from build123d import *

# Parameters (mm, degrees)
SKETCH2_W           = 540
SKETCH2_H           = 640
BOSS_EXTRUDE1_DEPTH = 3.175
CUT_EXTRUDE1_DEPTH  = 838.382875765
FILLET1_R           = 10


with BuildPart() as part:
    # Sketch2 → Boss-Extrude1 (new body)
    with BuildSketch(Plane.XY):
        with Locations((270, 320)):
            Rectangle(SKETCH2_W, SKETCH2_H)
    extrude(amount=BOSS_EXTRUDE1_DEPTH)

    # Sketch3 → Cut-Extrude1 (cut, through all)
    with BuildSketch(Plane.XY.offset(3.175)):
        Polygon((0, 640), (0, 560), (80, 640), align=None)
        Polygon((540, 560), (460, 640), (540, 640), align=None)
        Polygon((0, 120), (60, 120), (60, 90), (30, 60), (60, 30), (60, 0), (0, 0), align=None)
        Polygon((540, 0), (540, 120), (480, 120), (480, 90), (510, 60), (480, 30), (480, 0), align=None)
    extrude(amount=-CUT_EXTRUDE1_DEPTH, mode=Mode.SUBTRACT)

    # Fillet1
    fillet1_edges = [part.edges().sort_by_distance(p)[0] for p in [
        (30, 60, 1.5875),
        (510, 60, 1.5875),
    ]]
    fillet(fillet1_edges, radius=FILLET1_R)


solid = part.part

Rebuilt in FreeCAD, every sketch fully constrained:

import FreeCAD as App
import Part
import Sketcher
from FreeCAD import Vector


def edges_at(feature, points):
    """Names of the edges that pass closest to the given points."""
    edges = feature.Shape.Edges
    near = lambda p: min(range(len(edges)), key=lambda i: edges[i].distToShape(Part.Vertex(*p))[0])
    return sorted({f"Edge{near(p) + 1}" for p in points})


def add_polygon(sketch, points):
    """Adds a closed chain of lines whose ends are joined by coincident constraints."""
    first, n = sketch.GeometryCount, len(points)
    for a, b in zip(points, points[1:] + points[:1]):
        sketch.addGeometry(Part.LineSegment(App.Vector(*a, 0), App.Vector(*b, 0)), False)
    for i in range(n):
        sketch.addConstraint(Sketcher.Constraint("Coincident", first + i, 2, first + (i + 1) % n, 1))

doc = App.newDocument("Part")
body = doc.addObject("PartDesign::Body", "Body")

# Sketch on XY plane
sketch1 = doc.addObject("Sketcher::SketchObject", "Sketch")
body.addObject(sketch1)
sketch1.AttachmentSupport = (doc.XY_Plane, [""])
sketch1.MapMode = "FlatFace"
add_polygon(sketch1, [(0, 640), (0, 0), (540, 0), (540, 640)])  # lines 0-3
sketch1.addConstraint([
    Sketcher.Constraint("Vertical", 0),
    Sketcher.Constraint("Horizontal", 1),
    Sketcher.Constraint("Vertical", 2),
    Sketcher.Constraint("Horizontal", 3),
    Sketcher.Constraint("Coincident", 0, 2, -1, 1),
    Sketcher.Constraint("DistanceX", 1, 1, 1, 2, 540.0),
    Sketcher.Constraint("DistanceY", 0, 2, 0, 1, 640.0),
])
pad1 = doc.addObject("PartDesign::Pad", "Pad")
body.addObject(pad1)
pad1.Profile = sketch1
pad1.Length = 3.175

# Sketch on XY plane
sketch2 = doc.addObject("Sketcher::SketchObject", "Sketch001")
body.addObject(sketch2)
sketch2.AttachmentSupport = (doc.XY_Plane, [""])
sketch2.MapMode = "FlatFace"
sketch2.AttachmentOffset = App.Placement(Vector(0, 0, 3.175), App.Rotation())
add_polygon(sketch2, [(0, 640), (0, 560), (80, 640)])  # lines 0-2
add_polygon(sketch2, [(460, 640), (540, 560), (540, 640)])  # lines 3-5
add_polygon(sketch2, [(60, 120), (0, 120), (0, 0), (60, 0), (60, 30), (30, 60), (60, 90)])  # lines 6-12
add_polygon(sketch2, [(540, 0), (540, 120), (480, 120), (480, 90), (510, 60), (480, 30), (480, 0)])  # lines 13-19
sketch2.addConstraint([
    Sketcher.Constraint("Vertical", 0),
    Sketcher.Constraint("Horizontal", 2),
    Sketcher.Constraint("Vertical", 4),
    Sketcher.Constraint("Horizontal", 5),
    Sketcher.Constraint("Horizontal", 6),
    Sketcher.Constraint("Vertical", 7),
    Sketcher.Constraint("Horizontal", 8),
    Sketcher.Constraint("Vertical", 9),
    Sketcher.Constraint("Vertical", 12),
    Sketcher.Constraint("Vertical", 13),
    Sketcher.Constraint("Horizontal", 14),
    Sketcher.Constraint("Vertical", 15),
    Sketcher.Constraint("Vertical", 18),
    Sketcher.Constraint("Horizontal", 19),
    Sketcher.Constraint("Coincident", 7, 2, -1, 1),
    Sketcher.Constraint("PointOnObject", 0, 2, -2),
    Sketcher.Constraint("PointOnObject", 18, 2, -1),
    Sketcher.Constraint("Perpendicular", 1, 3),
    Sketcher.Constraint("Parallel", 3, 10),
    Sketcher.Constraint("Perpendicular", 10, 11),
    Sketcher.Constraint("Perpendicular", 11, 16),
    Sketcher.Constraint("Perpendicular", 16, 17),
    Sketcher.Constraint("Horizontal", 0, 2, 3, 2),
    Sketcher.Constraint("Horizontal", 2, 2, 4, 2),
    Sketcher.Constraint("Horizontal", 12, 2, 13, 2),
    Sketcher.Constraint("Horizontal", 11, 2, 15, 2),
    Sketcher.Constraint("Horizontal", 10, 2, 16, 2),
    Sketcher.Constraint("Horizontal", 9, 2, 17, 2),
    Sketcher.Constraint("Vertical", 9, 2, 11, 2),
    Sketcher.Constraint("Vertical", 4, 2, 13, 2),
    Sketcher.Constraint("Vertical", 15, 2, 17, 2),
    Sketcher.Constraint("Equal", 8, 14),
    Sketcher.Constraint("Equal", 9, 12),
    Sketcher.Constraint("DistanceX", 2, 2, 2, 1, 80.0),
    Sketcher.Constraint("DistanceX", 6, 2, 6, 1, 60.0),
    Sketcher.Constraint("DistanceY", 7, 2, 7, 1, 120.0),
    Sketcher.Constraint("DistanceY", 9, 1, 9, 2, 30.0),
    Sketcher.Constraint("DistanceY", -1, 1, 0, 2, 560.0),
    Sketcher.Constraint("DistanceX", -1, 1, 3, 2, 540.0),
])
pocket1 = doc.addObject("PartDesign::Pocket", "Pocket")
body.addObject(pocket1)
pocket1.Profile = sketch2
pocket1.Type = "ThroughAll"
doc.recompute()

fillet = doc.addObject("PartDesign::Fillet", "Fillet")
body.addObject(fillet)
fillet.Base = (pocket1, edges_at(pocket1, [(30, 60, 1.587), (510, 60, 1.587)]))
fillet.Radius = 10

doc.recompute()
